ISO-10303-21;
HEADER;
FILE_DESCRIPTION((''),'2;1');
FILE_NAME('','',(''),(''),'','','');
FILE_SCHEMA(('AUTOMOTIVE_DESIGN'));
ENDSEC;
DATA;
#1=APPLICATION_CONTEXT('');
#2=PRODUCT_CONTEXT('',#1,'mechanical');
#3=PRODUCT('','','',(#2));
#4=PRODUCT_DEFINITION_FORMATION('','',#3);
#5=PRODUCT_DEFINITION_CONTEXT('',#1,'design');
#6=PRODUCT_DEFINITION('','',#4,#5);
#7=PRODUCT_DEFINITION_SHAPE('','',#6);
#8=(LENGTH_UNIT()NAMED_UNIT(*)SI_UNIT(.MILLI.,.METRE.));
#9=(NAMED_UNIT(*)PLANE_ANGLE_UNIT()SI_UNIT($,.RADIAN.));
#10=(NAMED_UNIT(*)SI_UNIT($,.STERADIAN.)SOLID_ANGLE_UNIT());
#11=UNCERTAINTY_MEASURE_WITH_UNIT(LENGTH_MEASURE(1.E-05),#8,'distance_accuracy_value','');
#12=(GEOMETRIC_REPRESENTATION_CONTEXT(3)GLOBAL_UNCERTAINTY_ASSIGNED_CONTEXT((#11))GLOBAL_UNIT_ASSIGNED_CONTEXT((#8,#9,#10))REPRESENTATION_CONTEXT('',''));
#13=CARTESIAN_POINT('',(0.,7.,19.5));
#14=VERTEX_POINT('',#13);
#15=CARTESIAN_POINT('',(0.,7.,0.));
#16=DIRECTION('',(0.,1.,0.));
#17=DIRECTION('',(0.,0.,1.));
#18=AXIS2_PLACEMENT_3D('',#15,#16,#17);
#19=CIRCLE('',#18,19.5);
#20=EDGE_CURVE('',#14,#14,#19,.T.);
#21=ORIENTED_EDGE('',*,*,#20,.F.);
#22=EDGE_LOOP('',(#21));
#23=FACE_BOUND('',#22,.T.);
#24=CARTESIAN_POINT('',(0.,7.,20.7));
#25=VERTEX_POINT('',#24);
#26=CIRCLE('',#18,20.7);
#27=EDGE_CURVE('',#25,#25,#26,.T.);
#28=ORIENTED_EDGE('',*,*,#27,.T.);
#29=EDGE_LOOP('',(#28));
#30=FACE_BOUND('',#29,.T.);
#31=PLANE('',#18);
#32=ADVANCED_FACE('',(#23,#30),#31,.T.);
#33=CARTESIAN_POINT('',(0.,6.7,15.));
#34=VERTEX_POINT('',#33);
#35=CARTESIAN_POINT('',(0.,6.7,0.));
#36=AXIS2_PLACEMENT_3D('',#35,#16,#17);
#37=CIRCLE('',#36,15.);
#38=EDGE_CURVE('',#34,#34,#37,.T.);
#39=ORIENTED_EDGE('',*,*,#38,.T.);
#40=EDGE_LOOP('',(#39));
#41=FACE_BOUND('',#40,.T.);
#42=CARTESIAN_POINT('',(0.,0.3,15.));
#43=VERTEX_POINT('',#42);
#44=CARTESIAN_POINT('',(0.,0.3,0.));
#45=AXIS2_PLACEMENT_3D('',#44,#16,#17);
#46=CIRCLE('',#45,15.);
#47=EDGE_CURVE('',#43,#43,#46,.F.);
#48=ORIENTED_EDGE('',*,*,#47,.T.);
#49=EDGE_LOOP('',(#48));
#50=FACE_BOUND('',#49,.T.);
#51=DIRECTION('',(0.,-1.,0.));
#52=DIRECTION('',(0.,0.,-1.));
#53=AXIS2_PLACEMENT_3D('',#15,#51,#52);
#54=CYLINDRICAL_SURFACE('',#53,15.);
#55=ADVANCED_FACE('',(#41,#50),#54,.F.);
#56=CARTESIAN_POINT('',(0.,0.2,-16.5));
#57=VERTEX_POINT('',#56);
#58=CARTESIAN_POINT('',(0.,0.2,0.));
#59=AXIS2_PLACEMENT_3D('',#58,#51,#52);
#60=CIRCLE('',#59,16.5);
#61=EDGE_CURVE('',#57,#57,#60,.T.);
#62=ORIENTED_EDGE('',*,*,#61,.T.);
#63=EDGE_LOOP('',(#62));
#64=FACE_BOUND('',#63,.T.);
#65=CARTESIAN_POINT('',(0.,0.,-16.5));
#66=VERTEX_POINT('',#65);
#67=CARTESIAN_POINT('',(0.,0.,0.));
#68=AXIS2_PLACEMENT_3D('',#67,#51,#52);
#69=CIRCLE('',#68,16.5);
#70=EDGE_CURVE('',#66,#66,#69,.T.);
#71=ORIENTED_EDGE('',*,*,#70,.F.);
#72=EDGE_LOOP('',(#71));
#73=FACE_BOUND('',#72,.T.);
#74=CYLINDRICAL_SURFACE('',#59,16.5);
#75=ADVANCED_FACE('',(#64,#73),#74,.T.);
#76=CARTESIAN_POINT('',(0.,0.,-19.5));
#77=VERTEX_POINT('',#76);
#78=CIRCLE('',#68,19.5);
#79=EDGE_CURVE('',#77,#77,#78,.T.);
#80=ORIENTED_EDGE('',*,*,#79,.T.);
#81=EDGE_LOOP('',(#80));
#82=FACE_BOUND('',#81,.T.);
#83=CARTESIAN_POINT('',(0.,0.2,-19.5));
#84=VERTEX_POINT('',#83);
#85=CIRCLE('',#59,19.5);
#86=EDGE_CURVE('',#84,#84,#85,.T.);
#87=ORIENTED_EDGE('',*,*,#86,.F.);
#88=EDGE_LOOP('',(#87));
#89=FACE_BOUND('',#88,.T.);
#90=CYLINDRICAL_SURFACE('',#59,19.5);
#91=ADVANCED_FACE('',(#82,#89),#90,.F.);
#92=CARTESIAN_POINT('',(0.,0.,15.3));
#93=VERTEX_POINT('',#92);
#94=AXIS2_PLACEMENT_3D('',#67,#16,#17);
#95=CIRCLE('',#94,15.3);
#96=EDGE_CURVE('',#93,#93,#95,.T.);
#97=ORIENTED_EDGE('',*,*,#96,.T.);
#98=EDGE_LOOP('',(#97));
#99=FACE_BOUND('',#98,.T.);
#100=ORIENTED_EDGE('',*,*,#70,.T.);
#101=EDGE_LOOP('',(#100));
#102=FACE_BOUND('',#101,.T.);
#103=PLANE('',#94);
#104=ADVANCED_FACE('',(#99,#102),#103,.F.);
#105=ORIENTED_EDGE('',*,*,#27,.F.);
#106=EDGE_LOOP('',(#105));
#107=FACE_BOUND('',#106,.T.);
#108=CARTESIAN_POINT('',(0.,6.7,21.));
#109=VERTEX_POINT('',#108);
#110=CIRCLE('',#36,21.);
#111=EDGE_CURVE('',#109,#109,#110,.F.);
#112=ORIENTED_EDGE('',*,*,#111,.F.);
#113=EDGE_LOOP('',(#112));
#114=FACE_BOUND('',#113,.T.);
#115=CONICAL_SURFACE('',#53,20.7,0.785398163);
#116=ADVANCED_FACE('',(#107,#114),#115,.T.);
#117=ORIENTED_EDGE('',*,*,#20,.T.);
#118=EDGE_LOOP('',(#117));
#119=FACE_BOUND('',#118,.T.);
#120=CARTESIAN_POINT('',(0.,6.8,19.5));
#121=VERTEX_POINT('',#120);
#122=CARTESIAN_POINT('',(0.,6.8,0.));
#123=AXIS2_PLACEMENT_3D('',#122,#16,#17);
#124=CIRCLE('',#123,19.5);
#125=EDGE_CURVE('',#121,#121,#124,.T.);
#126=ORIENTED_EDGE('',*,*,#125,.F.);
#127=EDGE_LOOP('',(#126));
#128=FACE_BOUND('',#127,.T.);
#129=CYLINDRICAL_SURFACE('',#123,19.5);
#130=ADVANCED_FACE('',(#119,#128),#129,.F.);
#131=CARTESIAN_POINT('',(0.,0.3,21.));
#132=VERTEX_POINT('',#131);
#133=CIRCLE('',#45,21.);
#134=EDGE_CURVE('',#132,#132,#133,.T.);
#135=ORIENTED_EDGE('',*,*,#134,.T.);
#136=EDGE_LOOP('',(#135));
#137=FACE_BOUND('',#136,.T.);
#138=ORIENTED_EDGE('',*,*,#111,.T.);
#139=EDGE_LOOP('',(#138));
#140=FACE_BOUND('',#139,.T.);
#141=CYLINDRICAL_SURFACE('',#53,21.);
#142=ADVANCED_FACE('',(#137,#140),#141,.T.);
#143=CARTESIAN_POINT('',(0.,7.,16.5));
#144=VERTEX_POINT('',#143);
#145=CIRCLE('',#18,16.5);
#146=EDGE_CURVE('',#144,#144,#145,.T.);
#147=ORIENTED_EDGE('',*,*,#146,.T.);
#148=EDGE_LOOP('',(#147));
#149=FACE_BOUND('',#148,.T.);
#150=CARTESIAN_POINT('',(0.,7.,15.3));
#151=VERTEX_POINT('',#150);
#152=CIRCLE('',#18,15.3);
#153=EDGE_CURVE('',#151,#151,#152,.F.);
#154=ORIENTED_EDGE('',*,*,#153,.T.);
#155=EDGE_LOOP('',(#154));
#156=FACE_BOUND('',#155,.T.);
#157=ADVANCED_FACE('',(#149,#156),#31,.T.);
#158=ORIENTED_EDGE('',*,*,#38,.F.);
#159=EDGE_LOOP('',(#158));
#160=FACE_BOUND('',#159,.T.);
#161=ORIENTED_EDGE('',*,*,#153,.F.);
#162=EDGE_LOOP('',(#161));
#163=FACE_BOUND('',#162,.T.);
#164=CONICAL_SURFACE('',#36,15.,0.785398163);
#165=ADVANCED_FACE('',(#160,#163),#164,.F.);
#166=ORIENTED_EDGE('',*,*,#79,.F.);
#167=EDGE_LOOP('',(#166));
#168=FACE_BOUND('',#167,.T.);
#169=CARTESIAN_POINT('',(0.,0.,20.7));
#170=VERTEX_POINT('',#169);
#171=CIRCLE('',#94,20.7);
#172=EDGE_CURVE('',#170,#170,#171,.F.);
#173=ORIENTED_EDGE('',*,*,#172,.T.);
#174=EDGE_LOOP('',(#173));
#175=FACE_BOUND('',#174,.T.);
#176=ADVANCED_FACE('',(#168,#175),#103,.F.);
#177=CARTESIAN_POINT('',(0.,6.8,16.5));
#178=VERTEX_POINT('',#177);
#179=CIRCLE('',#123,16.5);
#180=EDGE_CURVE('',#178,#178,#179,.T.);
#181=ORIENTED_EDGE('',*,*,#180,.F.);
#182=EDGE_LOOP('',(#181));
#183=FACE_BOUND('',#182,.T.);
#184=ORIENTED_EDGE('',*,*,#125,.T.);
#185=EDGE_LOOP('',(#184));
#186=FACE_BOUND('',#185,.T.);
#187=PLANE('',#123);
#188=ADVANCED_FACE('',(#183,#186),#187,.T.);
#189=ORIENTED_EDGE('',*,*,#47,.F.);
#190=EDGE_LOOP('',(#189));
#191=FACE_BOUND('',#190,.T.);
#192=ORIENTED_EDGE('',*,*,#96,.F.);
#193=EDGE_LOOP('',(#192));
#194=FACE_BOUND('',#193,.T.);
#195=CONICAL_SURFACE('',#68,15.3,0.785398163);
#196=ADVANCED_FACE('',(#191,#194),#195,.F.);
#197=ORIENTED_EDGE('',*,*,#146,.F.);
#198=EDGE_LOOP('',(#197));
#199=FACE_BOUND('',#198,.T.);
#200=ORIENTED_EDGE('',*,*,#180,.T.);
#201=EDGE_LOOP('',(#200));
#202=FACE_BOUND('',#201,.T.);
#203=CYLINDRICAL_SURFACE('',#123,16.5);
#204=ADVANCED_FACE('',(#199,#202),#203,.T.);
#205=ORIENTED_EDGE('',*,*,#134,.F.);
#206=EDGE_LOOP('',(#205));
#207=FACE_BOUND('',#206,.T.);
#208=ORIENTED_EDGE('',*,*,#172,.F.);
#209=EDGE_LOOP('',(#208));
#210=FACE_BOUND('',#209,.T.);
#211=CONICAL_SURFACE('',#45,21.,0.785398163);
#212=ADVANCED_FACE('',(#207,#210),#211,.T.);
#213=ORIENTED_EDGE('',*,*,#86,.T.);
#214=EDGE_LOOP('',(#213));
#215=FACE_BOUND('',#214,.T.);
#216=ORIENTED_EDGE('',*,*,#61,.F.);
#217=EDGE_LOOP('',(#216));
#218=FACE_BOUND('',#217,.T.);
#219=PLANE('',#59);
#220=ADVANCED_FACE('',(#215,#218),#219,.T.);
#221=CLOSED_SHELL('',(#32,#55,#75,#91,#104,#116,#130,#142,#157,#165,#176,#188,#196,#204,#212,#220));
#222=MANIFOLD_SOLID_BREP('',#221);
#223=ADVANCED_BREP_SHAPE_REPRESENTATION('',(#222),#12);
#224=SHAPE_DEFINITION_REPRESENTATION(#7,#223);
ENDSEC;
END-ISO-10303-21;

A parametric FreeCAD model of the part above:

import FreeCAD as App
import Part
import Sketcher


def edges_at(feature, points):
    """Names of the edges that pass closest to the given points."""
    edges = feature.Shape.Edges
    near = lambda p: min(range(len(edges)), key=lambda i: edges[i].distToShape(Part.Vertex(*p))[0])
    return sorted({f"Edge{near(p) + 1}" for p in points})

doc = App.newDocument("Part")
params = doc.addObject("Spreadsheet::Sheet", "Params")
for row, (alias, value) in enumerate([
    ("sketch1_diameter", "42 mm"),
    ("sketch1_diameter2", "30 mm"),
    ("pad1_length", "7 mm"),
    ("sketch2_diameter", "39 mm"),
    ("sketch2_diameter2", "33 mm"),
    ("pocket1_length", "0.2 mm"),
    ("chamfer_size", "0.3 mm"),
    ("sketch3_diameter", "39 mm"),
    ("sketch3_diameter2", "33 mm"),
    ("pocket2_length", "0.2 mm"),
], start=1):
    params.set(f"A{row}", alias)
    params.set(f"B{row}", "=" + value)
    params.setAlias(f"B{row}", alias)

body = doc.addObject("PartDesign::Body", "Body")

sketch1 = body.newObject("Sketcher::SketchObject", "Sketch")
sketch1.AttachmentSupport = (doc.getObject("XZ_Plane"), [""])
sketch1.MapMode = "FlatFace"
sketch1.addGeometry(Part.Circle(App.Vector(0, 0, 0), App.Vector(0, 0, 1), 21), False)
sketch1.addGeometry(Part.Circle(App.Vector(0, 0, 0), App.Vector(0, 0, 1), 15), False)
sketch1.addConstraint(Sketcher.Constraint("Coincident", 0, 3, -1, 1))
sketch1.addConstraint(Sketcher.Constraint("Coincident", 1, 3, -1, 1))
sketch1.addConstraint(Sketcher.Constraint("Diameter", 0, 42.0))
sketch1.addConstraint(Sketcher.Constraint("Diameter", 1, 30.0))
sketch1.setExpression("Constraints[2]", "Params.sketch1_diameter")
sketch1.setExpression("Constraints[3]", "Params.sketch1_diameter2")
pad1 = body.newObject("PartDesign::Pad", "Pad")
pad1.Profile = sketch1
pad1.setExpression("Length", "Params.pad1_length")
pad1.Reversed = True

sketch2 = body.newObject("Sketcher::SketchObject", "Sketch001")
sketch2.AttachmentSupport = (doc.getObject("XZ_Plane"), [""])
sketch2.MapMode = "FlatFace"
sketch2.AttachmentOffset = App.Placement(App.Vector(0, 0, -7), App.Rotation())
sketch2.addGeometry(Part.Circle(App.Vector(0, 0, 0), App.Vector(0, 0, 1), 19.5), False)
sketch2.addGeometry(Part.Circle(App.Vector(0, 0, 0), App.Vector(0, 0, 1), 16.5), False)
sketch2.addConstraint(Sketcher.Constraint("Coincident", 0, 3, -1, 1))
sketch2.addConstraint(Sketcher.Constraint("Coincident", 1, 3, -1, 1))
sketch2.addConstraint(Sketcher.Constraint("Diameter", 0, 39.0))
sketch2.addConstraint(Sketcher.Constraint("Diameter", 1, 33.0))
sketch2.setExpression("Constraints[2]", "Params.sketch2_diameter")
sketch2.setExpression("Constraints[3]", "Params.sketch2_diameter2")
pocket1 = body.newObject("PartDesign::Pocket", "Pocket")
pocket1.Profile = sketch2
pocket1.setExpression("Length", "Params.pocket1_length")
pocket1.Reversed = True
doc.recompute()

chamfer = body.newObject("PartDesign::Chamfer", "Chamfer")
chamfer.Base = (pocket1, edges_at(pocket1, [
    (-21, 0, 0),
    (-21, 7, 0),
    (-15, 0, 0),
    (-15, 7, 0),
]))
chamfer.setExpression("Size", "Params.chamfer_size")

sketch3 = body.newObject("Sketcher::SketchObject", "Sketch002")
sketch3.AttachmentSupport = (doc.getObject("XZ_Plane"), [""])
sketch3.MapMode = "FlatFace"
sketch3.addGeometry(Part.Circle(App.Vector(0, 0, 0), App.Vector(0, 0, 1), 19.5), False)
sketch3.addGeometry(Part.Circle(App.Vector(0, 0, 0), App.Vector(0, 0, 1), 16.5), False)
sketch3.addConstraint(Sketcher.Constraint("Coincident", 0, 3, -1, 1))
sketch3.addConstraint(Sketcher.Constraint("Coincident", 1, 3, -1, 1))
sketch3.addConstraint(Sketcher.Constraint("Diameter", 0, 39.0))
sketch3.addConstraint(Sketcher.Constraint("Diameter", 1, 33.0))
sketch3.setExpression("Constraints[2]", "Params.sketch3_diameter")
sketch3.setExpression("Constraints[3]", "Params.sketch3_diameter2")
pocket2 = body.newObject("PartDesign::Pocket", "Pocket001")
pocket2.Profile = sketch3
pocket2.setExpression("Length", "Params.pocket2_length")

doc.recompute()
